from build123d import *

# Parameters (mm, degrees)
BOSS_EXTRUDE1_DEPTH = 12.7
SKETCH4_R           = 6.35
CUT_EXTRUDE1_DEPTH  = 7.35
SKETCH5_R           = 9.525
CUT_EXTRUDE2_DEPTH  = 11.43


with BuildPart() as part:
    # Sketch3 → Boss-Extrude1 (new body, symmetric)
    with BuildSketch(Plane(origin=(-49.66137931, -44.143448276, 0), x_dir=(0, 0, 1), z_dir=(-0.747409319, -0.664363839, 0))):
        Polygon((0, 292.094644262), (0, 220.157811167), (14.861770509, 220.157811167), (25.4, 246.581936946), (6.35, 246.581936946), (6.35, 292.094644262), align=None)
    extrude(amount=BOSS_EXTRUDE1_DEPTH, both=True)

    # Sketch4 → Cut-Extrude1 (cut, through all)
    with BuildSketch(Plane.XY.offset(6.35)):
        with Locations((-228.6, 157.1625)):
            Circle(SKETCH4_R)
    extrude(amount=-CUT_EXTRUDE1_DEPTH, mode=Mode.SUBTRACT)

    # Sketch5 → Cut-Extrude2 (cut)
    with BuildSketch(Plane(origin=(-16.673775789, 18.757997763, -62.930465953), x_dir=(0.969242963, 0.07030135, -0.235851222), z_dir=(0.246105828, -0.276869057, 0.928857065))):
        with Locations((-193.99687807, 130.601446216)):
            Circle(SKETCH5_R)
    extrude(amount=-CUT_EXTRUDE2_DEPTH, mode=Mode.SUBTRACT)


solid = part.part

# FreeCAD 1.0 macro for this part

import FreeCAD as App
import Part
import Sketcher
from FreeCAD import Vector
Q = App.Units.Quantity

doc = App.newDocument("Part")
body = doc.addObject("PartDesign::Body", "Body")

sketch1 = body.newObject("Sketcher::SketchObject", "Sketch")
sketch1.Placement = App.Placement(Vector(-49.661379, -44.143448, 0), App.Rotation(Vector(0, 0, 1), Vector(-0.664363839, 0.747409319, 0), Vector(-0.747409319, -0.664363839, 0), "ZXY"))
sketch1.addGeometry([
    Part.LineSegment(Vector(0, 292, 0), Vector(0, 220, 0)),
    Part.LineSegment(Vector(0, 220, 0), Vector(15, 220, 0)),
    Part.LineSegment(Vector(15, 220, 0), Vector(25, 247, 0)),
    Part.LineSegment(Vector(25, 247, 0), Vector(6, 247, 0)),
    Part.LineSegment(Vector(6, 247, 0), Vector(6, 292, 0)),
    Part.LineSegment(Vector(6, 292, 0), Vector(0, 292, 0)),
], False)
sketch1.addConstraint([
    Sketcher.Constraint("Coincident", 0, 2, 1, 1),
    Sketcher.Constraint("Coincident", 1, 2, 2, 1),
    Sketcher.Constraint("Coincident", 2, 2, 3, 1),
    Sketcher.Constraint("Coincident", 3, 2, 4, 1),
    Sketcher.Constraint("Coincident", 4, 2, 5, 1),
    Sketcher.Constraint("Coincident", 5, 2, 0, 1),
    Sketcher.Constraint("Vertical", 0),
    Sketcher.Constraint("Horizontal", 1),
    Sketcher.Constraint("Horizontal", 3),
    Sketcher.Constraint("Vertical", 4),
    Sketcher.Constraint("Horizontal", 5),
    Sketcher.Constraint("PointOnObject", 0, 2, -2),
    Sketcher.Constraint("DistanceX", -1, 1, 2, 2, Q("1 in")),
    Sketcher.Constraint("DistanceX", 3, 2, 3, 1, Q("0.75 in")),
    Sketcher.Constraint("Distance", 2, Q("1.12 in")),
    Sketcher.Constraint("DistanceX", 1, 1, 1, 2, Q("14.861771 mm")),
    Sketcher.Constraint("DistanceY", 0, 2, 0, 1, Q("71.936833 mm")),
    Sketcher.Constraint("DistanceY", -1, 1, 0, 2, Q("220.157811 mm")),
])
pad1 = body.newObject("PartDesign::Pad", "Pad")
pad1.Profile = sketch1
pad1.Length = Q("1 in")
pad1.Midplane = True

sketch2 = body.newObject("Sketcher::SketchObject", "Sketch001")
sketch2.AttachmentSupport = (doc.getObject("XY_Plane"), [""])
sketch2.MapMode = "FlatFace"
sketch2.AttachmentOffset = App.Placement(Vector(0, 0, 0.25 * 25.4), App.Rotation())
sketch2.addGeometry(Part.Circle(Vector(-229, 157, 0), Vector(0, 0, 1), 6), False)
sketch2.addConstraint([
    Sketcher.Constraint("Diameter", 0, Q("0.5 in")),
    Sketcher.Constraint("DistanceX", 0, 3, -1, 1, Q("9 in")),
    Sketcher.Constraint("DistanceY", -1, 1, 0, 3, Q("6.1875 in")),
])
pocket1 = body.newObject("PartDesign::Pocket", "Pocket")
pocket1.Profile = sketch2
pocket1.Type = "ThroughAll"

sketch3 = body.newObject("Sketcher::SketchObject", "Sketch002")
sketch3.Placement = App.Placement(Vector(-16.673776, 18.757998, -62.930466), App.Rotation(Vector(0.969242963, 0.07030135, -0.235851222), Vector(0, 0.958332534, 0.285654957), Vector(0.246105828, -0.276869057, 0.928857065), "ZXY"))
sketch3.addGeometry(Part.Circle(Vector(-194, 131, 0), Vector(0, 0, 1), 10), False)
sketch3.addConstraint([
    Sketcher.Constraint("Diameter", 0, Q("0.75 in")),
    Sketcher.Constraint("DistanceX", 0, 3, -1, 1, Q("193.996878 mm")),
    Sketcher.Constraint("DistanceY", -1, 1, 0, 3, Q("130.601446 mm")),
])
pocket2 = body.newObject("PartDesign::Pocket", "Pocket001")
pocket2.Profile = sketch3
pocket2.Length = Q("0.45 in")

doc.recompute()
